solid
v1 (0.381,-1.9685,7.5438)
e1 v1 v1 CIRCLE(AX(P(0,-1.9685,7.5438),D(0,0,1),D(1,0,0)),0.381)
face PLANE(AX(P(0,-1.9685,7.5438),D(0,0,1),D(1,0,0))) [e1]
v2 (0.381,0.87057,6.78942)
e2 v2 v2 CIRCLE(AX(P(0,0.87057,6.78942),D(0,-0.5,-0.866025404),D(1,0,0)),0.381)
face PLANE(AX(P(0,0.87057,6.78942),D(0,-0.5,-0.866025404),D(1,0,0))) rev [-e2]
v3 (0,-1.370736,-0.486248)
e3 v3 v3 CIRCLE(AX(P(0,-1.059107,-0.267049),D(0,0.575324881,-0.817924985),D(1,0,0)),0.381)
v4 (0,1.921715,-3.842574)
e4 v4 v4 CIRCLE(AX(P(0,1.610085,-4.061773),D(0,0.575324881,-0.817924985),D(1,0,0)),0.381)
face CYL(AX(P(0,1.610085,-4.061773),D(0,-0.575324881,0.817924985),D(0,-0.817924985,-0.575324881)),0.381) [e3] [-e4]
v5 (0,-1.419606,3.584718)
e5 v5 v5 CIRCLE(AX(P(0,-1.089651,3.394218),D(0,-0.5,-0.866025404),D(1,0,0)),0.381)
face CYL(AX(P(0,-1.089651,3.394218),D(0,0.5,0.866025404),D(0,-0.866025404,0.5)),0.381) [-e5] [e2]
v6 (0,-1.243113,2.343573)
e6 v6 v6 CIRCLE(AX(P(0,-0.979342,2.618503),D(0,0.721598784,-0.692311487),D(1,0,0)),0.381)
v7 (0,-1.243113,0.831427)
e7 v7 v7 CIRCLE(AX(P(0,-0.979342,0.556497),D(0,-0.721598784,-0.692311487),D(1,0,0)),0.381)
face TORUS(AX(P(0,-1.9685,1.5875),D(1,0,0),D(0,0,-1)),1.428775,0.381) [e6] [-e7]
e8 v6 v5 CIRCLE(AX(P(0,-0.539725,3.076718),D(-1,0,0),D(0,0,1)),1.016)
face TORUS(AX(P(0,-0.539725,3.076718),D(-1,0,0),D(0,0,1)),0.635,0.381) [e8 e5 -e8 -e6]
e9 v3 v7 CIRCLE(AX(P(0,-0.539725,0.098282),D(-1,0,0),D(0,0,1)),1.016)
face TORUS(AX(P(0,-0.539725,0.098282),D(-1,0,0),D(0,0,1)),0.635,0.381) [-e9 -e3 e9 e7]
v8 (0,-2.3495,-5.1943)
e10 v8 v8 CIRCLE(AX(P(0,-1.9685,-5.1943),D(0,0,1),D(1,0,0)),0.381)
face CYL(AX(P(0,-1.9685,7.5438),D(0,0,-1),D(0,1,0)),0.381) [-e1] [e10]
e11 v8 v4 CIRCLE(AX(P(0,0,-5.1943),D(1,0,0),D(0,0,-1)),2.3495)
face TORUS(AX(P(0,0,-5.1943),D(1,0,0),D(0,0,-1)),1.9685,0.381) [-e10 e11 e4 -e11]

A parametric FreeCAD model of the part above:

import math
import FreeCAD as App
import Part
import Sketcher

V = App.Vector
Q = App.Units.Quantity

doc = App.newDocument("Part")
body = doc.addObject("PartDesign::Body", "Body")

# Sketch on XY plane
sketch1 = doc.addObject("Sketcher::SketchObject", "Sketch")
body.addObject(sketch1)
sketch1.AttachmentSupport = (doc.XY_Plane, [""])
sketch1.MapMode = "FlatFace"
sketch1.AttachmentOffset = App.Placement(V(0, 0, 0.297 * 25.4), App.Rotation())
sketch1.addGeometry(Part.Circle(V(0, -1.97, 0), V(0, 0, 1), 0.38), False)
sketch1.addConstraint(Sketcher.Constraint("PointOnObject", 0, 3, -2))
sketch1.addConstraint(Sketcher.Constraint("Diameter", 0, Q("0.03 in")))
sketch1.addConstraint(Sketcher.Constraint("DistanceY", 0, 3, -1, 1, Q("0.0775 in")))

# Sketch on YZ plane
sketch2 = doc.addObject("Sketcher::SketchObject", "Sketch001")
body.addObject(sketch2)
sketch2.AttachmentSupport = (doc.YZ_Plane, [""])
sketch2.MapMode = "FlatFace"
sketch2.addGeometry(Part.LineSegment(V(0.9, 6.8, 0), V(-1.1, 3.4, 0)), False)
sketch2.addGeometry(Part.ArcOfCircle(Part.Circle(V(-0.5, 3.1, 0), V(0, 0, 1), 0.6), math.radians(150), math.radians(226)), False)
sketch2.addGeometry(Part.ArcOfCircle(Part.Circle(V(-2, 1.6, 0), V(0, 0, 1), 1.4), math.radians(-46), math.radians(46)), False)
sketch2.addGeometry(Part.ArcOfCircle(Part.Circle(V(-0.5, 0.1, 0), V(0, 0, 1), 0.6), math.radians(134), math.radians(215)), False)
sketch2.addGeometry(Part.LineSegment(V(-1.1, -0.3, 0), V(1.6, -4.1, 0)), False)
sketch2.addGeometry(Part.ArcOfCircle(Part.Circle(V(0, -5.2, 0), V(0, 0, 1), 2), math.radians(180), math.radians(395)), False)
sketch2.addGeometry(Part.LineSegment(V(-2, -5.2, 0), V(-2, 7.5, 0)), False)
sketch2.addConstraint(Sketcher.Constraint("Tangent", 0, 2, 1, 1))
sketch2.addConstraint(Sketcher.Constraint("Tangent", 1, 2, 2, 2))
sketch2.addConstraint(Sketcher.Constraint("Tangent", 2, 1, 3, 1))
sketch2.addConstraint(Sketcher.Constraint("Tangent", 3, 2, 4, 1))
sketch2.addConstraint(Sketcher.Constraint("Tangent", 4, 2, 5, 2))
sketch2.addConstraint(Sketcher.Constraint("Tangent", 5, 1, 6, 1))
sketch2.addConstraint(Sketcher.Constraint("Vertical", 6))
sketch2.addConstraint(Sketcher.Constraint("Equal", 1, 3))
sketch2.addConstraint(Sketcher.Constraint("PointOnObject", 5, 3, -2))
sketch2.addConstraint(Sketcher.Constraint("Vertical", 1, 3, 3, 3))
sketch2.addConstraint(Sketcher.Constraint("Vertical", 2, 3, 5, 1))
sketch2.addConstraint(Sketcher.Constraint("Angle", 0, Q("-120 deg")))
sketch2.addConstraint(Sketcher.Constraint("Radius", 1, Q("0.025 in")))
sketch2.addConstraint(Sketcher.Constraint("Radius", 5, Q("0.0775 in")))
sketch2.addConstraint(Sketcher.Constraint("DistanceY", 6, 1, 6, 2, Q("0.5015 in")))
sketch2.addConstraint(Sketcher.Constraint("DistanceY", -1, 1, 2, 3, Q("0.0625 in")))
sketch2.addConstraint(Sketcher.Constraint("DistanceY", -1, 1, 6, 2, Q("0.297 in")))
sketch2.addConstraint(Sketcher.Constraint("DistanceY", -1, 1, 0, 1, Q("0.2673 in")))
sketch2.addConstraint(Sketcher.Constraint("Radius", 2, Q("1.428775 mm")))
sketch2.addConstraint(Sketcher.Constraint("Distance", 0, Q("3.920442 mm")))
doc.recompute()

additivepipe = doc.addObject("PartDesign::AdditivePipe", "AdditivePipe")
body.addObject(additivepipe)
additivepipe.Profile = sketch1
additivepipe.Spine = (sketch2, ["Edge1", "Edge2", "Edge3", "Edge4", "Edge5", "Edge6", "Edge7"])

doc.recompute()
